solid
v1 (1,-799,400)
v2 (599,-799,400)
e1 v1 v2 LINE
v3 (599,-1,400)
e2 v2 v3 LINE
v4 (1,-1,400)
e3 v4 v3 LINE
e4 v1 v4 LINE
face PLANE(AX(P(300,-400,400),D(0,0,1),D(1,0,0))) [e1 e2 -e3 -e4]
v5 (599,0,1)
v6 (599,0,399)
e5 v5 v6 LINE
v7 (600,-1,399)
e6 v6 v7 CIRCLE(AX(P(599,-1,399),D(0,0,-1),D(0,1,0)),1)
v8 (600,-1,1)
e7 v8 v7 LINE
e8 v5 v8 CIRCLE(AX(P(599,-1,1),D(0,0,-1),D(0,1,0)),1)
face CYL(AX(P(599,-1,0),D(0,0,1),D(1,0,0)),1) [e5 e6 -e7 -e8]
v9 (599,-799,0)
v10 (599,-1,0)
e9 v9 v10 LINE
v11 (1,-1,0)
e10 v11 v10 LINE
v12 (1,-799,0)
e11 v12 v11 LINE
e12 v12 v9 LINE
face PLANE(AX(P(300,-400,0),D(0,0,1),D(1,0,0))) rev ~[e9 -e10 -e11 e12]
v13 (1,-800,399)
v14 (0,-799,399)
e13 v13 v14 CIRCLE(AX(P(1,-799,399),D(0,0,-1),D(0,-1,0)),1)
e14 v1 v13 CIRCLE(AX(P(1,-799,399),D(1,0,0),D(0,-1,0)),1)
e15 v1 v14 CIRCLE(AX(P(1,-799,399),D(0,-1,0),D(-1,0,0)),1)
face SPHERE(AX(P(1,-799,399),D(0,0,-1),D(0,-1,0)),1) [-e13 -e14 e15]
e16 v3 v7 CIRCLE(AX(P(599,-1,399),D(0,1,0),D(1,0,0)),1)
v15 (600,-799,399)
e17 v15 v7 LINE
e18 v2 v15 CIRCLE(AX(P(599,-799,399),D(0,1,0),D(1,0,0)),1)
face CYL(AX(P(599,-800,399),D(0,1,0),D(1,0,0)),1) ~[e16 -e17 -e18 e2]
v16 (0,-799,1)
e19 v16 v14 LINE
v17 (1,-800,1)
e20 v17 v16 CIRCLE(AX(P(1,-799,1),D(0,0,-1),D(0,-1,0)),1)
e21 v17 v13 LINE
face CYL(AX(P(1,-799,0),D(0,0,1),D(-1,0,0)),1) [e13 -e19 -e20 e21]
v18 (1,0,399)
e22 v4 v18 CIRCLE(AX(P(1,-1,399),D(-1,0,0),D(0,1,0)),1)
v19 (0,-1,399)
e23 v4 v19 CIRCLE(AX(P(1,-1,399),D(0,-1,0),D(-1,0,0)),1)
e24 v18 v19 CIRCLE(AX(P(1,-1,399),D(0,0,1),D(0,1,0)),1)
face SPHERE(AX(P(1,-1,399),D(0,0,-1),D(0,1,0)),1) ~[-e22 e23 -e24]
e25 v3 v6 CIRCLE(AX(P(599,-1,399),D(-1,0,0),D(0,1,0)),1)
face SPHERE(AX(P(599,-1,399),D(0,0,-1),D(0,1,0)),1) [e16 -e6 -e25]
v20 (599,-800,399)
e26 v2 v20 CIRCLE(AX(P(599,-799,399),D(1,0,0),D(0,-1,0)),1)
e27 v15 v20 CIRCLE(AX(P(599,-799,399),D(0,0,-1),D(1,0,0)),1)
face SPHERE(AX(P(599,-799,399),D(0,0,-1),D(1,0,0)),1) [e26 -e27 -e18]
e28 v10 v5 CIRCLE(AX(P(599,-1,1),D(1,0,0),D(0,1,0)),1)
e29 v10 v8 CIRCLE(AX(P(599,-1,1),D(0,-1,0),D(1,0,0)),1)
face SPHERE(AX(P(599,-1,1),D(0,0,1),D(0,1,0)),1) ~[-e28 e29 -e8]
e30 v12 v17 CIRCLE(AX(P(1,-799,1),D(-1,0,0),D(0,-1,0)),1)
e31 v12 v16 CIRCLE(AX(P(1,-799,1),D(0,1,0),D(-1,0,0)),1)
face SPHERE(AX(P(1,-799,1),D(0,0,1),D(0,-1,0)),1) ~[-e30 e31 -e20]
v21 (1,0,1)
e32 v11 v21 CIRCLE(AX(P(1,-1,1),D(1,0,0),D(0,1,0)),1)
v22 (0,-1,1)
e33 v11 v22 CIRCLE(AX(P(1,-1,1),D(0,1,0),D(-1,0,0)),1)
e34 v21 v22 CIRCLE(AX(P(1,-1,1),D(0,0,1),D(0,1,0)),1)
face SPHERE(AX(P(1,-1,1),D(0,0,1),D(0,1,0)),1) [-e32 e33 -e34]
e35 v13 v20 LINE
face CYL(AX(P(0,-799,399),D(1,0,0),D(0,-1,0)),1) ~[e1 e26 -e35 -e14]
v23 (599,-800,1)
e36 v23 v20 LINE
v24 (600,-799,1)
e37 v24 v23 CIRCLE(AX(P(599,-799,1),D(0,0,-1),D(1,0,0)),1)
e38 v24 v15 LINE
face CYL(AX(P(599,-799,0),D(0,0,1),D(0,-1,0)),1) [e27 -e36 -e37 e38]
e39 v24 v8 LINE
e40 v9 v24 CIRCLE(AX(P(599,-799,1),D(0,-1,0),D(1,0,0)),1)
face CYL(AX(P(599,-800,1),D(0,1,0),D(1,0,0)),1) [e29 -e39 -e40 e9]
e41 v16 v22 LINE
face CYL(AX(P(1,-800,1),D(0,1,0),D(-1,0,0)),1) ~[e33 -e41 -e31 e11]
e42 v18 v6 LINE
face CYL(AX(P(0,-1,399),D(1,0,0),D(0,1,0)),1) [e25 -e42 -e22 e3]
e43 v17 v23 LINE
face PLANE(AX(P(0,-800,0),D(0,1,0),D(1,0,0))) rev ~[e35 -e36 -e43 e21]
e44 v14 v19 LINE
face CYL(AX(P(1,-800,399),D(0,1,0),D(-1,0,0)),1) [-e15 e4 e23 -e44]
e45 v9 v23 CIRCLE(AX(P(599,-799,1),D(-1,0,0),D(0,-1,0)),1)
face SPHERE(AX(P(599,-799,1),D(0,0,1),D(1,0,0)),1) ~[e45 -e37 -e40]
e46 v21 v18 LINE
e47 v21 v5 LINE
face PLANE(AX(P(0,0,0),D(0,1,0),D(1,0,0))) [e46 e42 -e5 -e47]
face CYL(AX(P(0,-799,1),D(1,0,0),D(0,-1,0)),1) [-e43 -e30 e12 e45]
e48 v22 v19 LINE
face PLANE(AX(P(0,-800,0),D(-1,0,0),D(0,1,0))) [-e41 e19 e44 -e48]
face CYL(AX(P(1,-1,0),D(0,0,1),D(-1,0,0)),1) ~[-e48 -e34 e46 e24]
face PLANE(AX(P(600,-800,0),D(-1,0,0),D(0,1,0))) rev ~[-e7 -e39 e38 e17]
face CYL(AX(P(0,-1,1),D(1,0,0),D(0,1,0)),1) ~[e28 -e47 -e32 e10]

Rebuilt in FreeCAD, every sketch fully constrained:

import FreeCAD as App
import Part
import Sketcher


def add_polygon(sketch, points):
    """Adds a closed chain of lines whose ends are joined by coincident constraints."""
    first, n = sketch.GeometryCount, len(points)
    for a, b in zip(points, points[1:] + points[:1]):
        sketch.addGeometry(Part.LineSegment(App.Vector(*a, 0), App.Vector(*b, 0)), False)
    for i in range(n):
        sketch.addConstraint(Sketcher.Constraint("Coincident", first + i, 2, first + (i + 1) % n, 1))

doc = App.newDocument("Part")
params = doc.addObject("Spreadsheet::Sheet", "Params")
for row, (alias, value) in enumerate([
    ("sketch1_width", "600 mm"),
    ("sketch1_height", "800 mm"),
    ("pad1_length", "400 mm"),
    ("fillet_radius", "1 mm"),
], start=1):
    params.set(f"A{row}", alias)
    params.set(f"B{row}", "=" + value)
    params.setAlias(f"B{row}", alias)

body = doc.addObject("PartDesign::Body", "Body")

# Sketch on XY plane
sketch1 = body.newObject("Sketcher::SketchObject", "Sketch")
sketch1.AttachmentSupport = (doc.getObject("XY_Plane"), [""])
sketch1.MapMode = "FlatFace"
add_polygon(sketch1, [(0, 0), (0, -800), (600, -800), (600, 0)])  # lines 0-3
sketch1.addConstraint(Sketcher.Constraint("Vertical", 0))
sketch1.addConstraint(Sketcher.Constraint("Horizontal", 1))
sketch1.addConstraint(Sketcher.Constraint("Vertical", 2))
sketch1.addConstraint(Sketcher.Constraint("Horizontal", 3))
sketch1.addConstraint(Sketcher.Constraint("Coincident", 3, 2, -1, 1))
sketch1.addConstraint(Sketcher.Constraint("DistanceX", 1, 1, 1, 2, 600.0))
sketch1.addConstraint(Sketcher.Constraint("DistanceY", 0, 2, 0, 1, 800.0))
sketch1.setExpression("Constraints[9]", "Params.sketch1_width")
sketch1.setExpression("Constraints[10]", "Params.sketch1_height")
pad1 = body.newObject("PartDesign::Pad", "Pad")
pad1.Profile = sketch1
pad1.setExpression("Length", "Params.pad1_length")
doc.recompute()

fillet = body.newObject("PartDesign::Fillet", "Fillet")
fillet.Base = (pad1, ["Edge1"])
fillet.UseAllEdges = True
fillet.setExpression("Radius", "Params.fillet_radius")

doc.recompute()
